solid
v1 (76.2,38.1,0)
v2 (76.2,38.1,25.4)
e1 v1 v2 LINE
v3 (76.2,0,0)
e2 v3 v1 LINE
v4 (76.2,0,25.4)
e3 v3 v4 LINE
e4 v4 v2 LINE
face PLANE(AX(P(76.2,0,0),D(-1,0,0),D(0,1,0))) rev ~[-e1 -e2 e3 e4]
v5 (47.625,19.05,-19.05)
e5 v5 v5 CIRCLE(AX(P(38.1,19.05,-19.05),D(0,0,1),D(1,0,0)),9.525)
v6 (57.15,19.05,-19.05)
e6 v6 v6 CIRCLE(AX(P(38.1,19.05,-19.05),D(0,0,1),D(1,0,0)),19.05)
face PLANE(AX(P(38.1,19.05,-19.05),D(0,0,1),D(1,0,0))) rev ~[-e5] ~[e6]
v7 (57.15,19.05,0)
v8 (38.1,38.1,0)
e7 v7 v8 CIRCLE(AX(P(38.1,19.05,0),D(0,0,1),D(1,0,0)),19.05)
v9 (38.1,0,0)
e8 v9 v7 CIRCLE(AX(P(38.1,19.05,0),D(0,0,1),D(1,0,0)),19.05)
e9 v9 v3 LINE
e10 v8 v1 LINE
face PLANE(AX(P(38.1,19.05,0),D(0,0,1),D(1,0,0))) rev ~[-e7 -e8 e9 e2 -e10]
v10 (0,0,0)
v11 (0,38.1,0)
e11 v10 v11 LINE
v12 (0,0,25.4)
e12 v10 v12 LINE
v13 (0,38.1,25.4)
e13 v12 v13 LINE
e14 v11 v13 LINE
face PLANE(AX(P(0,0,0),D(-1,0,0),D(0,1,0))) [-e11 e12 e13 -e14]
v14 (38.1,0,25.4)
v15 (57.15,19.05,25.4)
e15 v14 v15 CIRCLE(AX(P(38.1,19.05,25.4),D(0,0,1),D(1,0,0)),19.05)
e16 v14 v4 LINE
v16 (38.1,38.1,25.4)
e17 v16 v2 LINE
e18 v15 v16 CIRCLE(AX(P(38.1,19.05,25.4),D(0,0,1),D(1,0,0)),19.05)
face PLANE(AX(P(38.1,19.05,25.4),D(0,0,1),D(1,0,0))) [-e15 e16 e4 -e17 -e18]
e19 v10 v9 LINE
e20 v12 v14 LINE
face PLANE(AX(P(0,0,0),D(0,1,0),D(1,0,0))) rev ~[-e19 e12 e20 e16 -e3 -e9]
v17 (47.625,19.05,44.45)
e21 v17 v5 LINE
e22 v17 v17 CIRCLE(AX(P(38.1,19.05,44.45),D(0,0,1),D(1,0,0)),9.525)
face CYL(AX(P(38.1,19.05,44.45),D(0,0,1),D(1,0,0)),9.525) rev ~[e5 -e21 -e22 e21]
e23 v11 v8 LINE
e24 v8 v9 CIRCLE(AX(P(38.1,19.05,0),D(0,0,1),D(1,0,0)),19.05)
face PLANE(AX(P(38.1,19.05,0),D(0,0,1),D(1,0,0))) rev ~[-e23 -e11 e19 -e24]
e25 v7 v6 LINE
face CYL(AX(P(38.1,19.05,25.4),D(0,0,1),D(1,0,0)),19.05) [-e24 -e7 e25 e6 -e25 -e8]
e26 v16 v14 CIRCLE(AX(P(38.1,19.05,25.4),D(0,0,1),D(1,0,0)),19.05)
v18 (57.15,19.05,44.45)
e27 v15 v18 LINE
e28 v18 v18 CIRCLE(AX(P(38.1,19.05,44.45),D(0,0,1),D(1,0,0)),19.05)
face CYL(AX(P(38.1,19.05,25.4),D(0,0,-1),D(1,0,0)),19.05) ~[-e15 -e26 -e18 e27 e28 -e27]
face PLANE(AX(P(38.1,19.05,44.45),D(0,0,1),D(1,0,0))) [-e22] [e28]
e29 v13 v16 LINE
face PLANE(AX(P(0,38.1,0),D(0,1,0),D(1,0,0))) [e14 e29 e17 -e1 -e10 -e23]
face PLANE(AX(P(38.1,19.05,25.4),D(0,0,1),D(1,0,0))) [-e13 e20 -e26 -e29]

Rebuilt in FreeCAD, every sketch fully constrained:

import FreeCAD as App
import Part
import Sketcher
Q = App.Units.Quantity

doc = App.newDocument("Part")
params = doc.addObject("Spreadsheet::Sheet", "Params")
for row, (alias, value) in enumerate([
    ("sketch1_width", "3 in"),
    ("sketch1_height", "1.5 in"),
    ("pad1_length", "1 in"),
    ("sketch2_diameter", "1.5 in"),
    ("pad2_length", "0.75 in"),
    ("pad2_length2", "1.75 in"),
    ("sketch3_diameter", "0.75 in"),
], start=1):
    params.set(f"A{row}", alias)
    params.set(f"B{row}", "=" + value)
    params.setAlias(f"B{row}", alias)

body = doc.addObject("PartDesign::Body", "Body")

# Sketch on XY plane
sketch1 = body.newObject("Sketcher::SketchObject", "Sketch")
sketch1.AttachmentSupport = (doc.getObject("XY_Plane"), [""])
sketch1.MapMode = "FlatFace"
sketch1.addGeometry([
    Part.LineSegment(App.Vector(0, 38, 0), App.Vector(0, 0, 0)),
    Part.LineSegment(App.Vector(0, 0, 0), App.Vector(76, 0, 0)),
    Part.LineSegment(App.Vector(76, 0, 0), App.Vector(76, 38, 0)),
    Part.LineSegment(App.Vector(76, 38, 0), App.Vector(0, 38, 0)),
], False)
sketch1.addConstraint([
    Sketcher.Constraint("Coincident", 0, 2, 1, 1),
    Sketcher.Constraint("Coincident", 1, 2, 2, 1),
    Sketcher.Constraint("Coincident", 2, 2, 3, 1),
    Sketcher.Constraint("Coincident", 3, 2, 0, 1),
    Sketcher.Constraint("Vertical", 0),
    Sketcher.Constraint("Horizontal", 1),
    Sketcher.Constraint("Vertical", 2),
    Sketcher.Constraint("Horizontal", 3),
    Sketcher.Constraint("Coincident", 0, 2, -1, 1),
    Sketcher.Constraint("DistanceX", 1, 1, 1, 2, Q("3 in")),
    Sketcher.Constraint("DistanceY", 0, 2, 0, 1, Q("1.5 in")),
])
sketch1.setExpression("Constraints[9]", "Params.sketch1_width")
sketch1.setExpression("Constraints[10]", "Params.sketch1_height")
pad1 = body.newObject("PartDesign::Pad", "Pad")
pad1.Profile = sketch1
pad1.setExpression("Length", "Params.pad1_length")

# Sketch on XY plane
sketch2 = body.newObject("Sketcher::SketchObject", "Sketch001")
sketch2.AttachmentSupport = (doc.getObject("XY_Plane"), [""])
sketch2.MapMode = "FlatFace"
sketch2.AttachmentOffset = App.Placement(App.Vector(0, 0, 1 * 25.4), App.Rotation())
sketch2.addGeometry(Part.Circle(App.Vector(38, 19, 0), App.Vector(0, 0, 1), 19), False)
sketch2.addConstraint([
    Sketcher.Constraint("Diameter", 0, Q("1.5 in")),
    Sketcher.Constraint("DistanceX", -1, 1, 0, 3, Q("1.5 in")),
    Sketcher.Constraint("DistanceY", -1, 1, 0, 3, Q("0.75 in")),
])
sketch2.setExpression("Constraints[0]", "Params.sketch2_diameter")
pad2 = body.newObject("PartDesign::Pad", "Pad001")
pad2.Profile = sketch2
pad2.Type = "TwoLengths"
pad2.setExpression("Length", "Params.pad2_length")
pad2.setExpression("Length2", "Params.pad2_length2")

# Sketch on XY plane
sketch3 = body.newObject("Sketcher::SketchObject", "Sketch002")
sketch3.AttachmentSupport = (doc.getObject("XY_Plane"), [""])
sketch3.MapMode = "FlatFace"
sketch3.AttachmentOffset = App.Placement(App.Vector(0, 0, 1.75 * 25.4), App.Rotation())
sketch3.addGeometry(Part.Circle(App.Vector(38, 19, 0), App.Vector(0, 0, 1), 10), False)
sketch3.addConstraint([
    Sketcher.Constraint("Diameter", 0, Q("0.75 in")),
    Sketcher.Constraint("DistanceX", -1, 1, 0, 3, Q("1.5 in")),
    Sketcher.Constraint("DistanceY", -1, 1, 0, 3, Q("0.75 in")),
])
sketch3.setExpression("Constraints[0]", "Params.sketch3_diameter")
pocket1 = body.newObject("PartDesign::Pocket", "Pocket")
pocket1.Profile = sketch3
pocket1.Type = "ThroughAll"

doc.recompute()
